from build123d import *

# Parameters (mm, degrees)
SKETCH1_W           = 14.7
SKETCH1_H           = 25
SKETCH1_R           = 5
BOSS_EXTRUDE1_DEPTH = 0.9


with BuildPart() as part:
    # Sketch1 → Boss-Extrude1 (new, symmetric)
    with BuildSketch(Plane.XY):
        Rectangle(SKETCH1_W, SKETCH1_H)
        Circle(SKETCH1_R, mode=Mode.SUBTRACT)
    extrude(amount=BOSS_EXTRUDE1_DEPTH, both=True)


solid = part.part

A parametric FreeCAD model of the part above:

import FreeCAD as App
import Part
import Sketcher
from FreeCAD import Vector


def add_polygon(sketch, points):
    """Adds a closed chain of lines whose ends are joined by coincident constraints."""
    first, n = sketch.GeometryCount, len(points)
    for a, b in zip(points, points[1:] + points[:1]):
        sketch.addGeometry(Part.LineSegment(App.Vector(*a, 0), App.Vector(*b, 0)), False)
    for i in range(n):
        sketch.addConstraint(Sketcher.Constraint("Coincident", first + i, 2, first + (i + 1) % n, 1))

doc = App.newDocument("Part")
body = doc.addObject("PartDesign::Body", "Body")

# Sketch on XY plane
sketch1 = body.newObject("Sketcher::SketchObject", "Sketch")
sketch1.AttachmentSupport = (doc.getObject("XY_Plane"), [""])
sketch1.MapMode = "FlatFace"
add_polygon(sketch1, [(-7.35, 12.5), (-7.35, -12.5), (7.35, -12.5), (7.35, 12.5)])  # lines 0-3
sketch1.addGeometry(Part.Circle(Vector(0, 0, 0), Vector(0, 0, 1), 5), False)  # 4
sketch1.addConstraint([
    Sketcher.Constraint("Vertical", 0),
    Sketcher.Constraint("Horizontal", 1),
    Sketcher.Constraint("Vertical", 2),
    Sketcher.Constraint("Horizontal", 3),
    Sketcher.Constraint("Coincident", 4, 3, -1, 1),
    Sketcher.Constraint("Symmetric", 0, 2, 2, 2, -1, 1),
    Sketcher.Constraint("Diameter", 4, 10.0),
    Sketcher.Constraint("DistanceY", 0, 2, 0, 1, 25.0),
    Sketcher.Constraint("DistanceX", 1, 1, 1, 2, 14.7),
])
pad1 = body.newObject("PartDesign::Pad", "Pad")
pad1.Profile = sketch1
pad1.Length = 1.8
pad1.Midplane = True

doc.recompute()
